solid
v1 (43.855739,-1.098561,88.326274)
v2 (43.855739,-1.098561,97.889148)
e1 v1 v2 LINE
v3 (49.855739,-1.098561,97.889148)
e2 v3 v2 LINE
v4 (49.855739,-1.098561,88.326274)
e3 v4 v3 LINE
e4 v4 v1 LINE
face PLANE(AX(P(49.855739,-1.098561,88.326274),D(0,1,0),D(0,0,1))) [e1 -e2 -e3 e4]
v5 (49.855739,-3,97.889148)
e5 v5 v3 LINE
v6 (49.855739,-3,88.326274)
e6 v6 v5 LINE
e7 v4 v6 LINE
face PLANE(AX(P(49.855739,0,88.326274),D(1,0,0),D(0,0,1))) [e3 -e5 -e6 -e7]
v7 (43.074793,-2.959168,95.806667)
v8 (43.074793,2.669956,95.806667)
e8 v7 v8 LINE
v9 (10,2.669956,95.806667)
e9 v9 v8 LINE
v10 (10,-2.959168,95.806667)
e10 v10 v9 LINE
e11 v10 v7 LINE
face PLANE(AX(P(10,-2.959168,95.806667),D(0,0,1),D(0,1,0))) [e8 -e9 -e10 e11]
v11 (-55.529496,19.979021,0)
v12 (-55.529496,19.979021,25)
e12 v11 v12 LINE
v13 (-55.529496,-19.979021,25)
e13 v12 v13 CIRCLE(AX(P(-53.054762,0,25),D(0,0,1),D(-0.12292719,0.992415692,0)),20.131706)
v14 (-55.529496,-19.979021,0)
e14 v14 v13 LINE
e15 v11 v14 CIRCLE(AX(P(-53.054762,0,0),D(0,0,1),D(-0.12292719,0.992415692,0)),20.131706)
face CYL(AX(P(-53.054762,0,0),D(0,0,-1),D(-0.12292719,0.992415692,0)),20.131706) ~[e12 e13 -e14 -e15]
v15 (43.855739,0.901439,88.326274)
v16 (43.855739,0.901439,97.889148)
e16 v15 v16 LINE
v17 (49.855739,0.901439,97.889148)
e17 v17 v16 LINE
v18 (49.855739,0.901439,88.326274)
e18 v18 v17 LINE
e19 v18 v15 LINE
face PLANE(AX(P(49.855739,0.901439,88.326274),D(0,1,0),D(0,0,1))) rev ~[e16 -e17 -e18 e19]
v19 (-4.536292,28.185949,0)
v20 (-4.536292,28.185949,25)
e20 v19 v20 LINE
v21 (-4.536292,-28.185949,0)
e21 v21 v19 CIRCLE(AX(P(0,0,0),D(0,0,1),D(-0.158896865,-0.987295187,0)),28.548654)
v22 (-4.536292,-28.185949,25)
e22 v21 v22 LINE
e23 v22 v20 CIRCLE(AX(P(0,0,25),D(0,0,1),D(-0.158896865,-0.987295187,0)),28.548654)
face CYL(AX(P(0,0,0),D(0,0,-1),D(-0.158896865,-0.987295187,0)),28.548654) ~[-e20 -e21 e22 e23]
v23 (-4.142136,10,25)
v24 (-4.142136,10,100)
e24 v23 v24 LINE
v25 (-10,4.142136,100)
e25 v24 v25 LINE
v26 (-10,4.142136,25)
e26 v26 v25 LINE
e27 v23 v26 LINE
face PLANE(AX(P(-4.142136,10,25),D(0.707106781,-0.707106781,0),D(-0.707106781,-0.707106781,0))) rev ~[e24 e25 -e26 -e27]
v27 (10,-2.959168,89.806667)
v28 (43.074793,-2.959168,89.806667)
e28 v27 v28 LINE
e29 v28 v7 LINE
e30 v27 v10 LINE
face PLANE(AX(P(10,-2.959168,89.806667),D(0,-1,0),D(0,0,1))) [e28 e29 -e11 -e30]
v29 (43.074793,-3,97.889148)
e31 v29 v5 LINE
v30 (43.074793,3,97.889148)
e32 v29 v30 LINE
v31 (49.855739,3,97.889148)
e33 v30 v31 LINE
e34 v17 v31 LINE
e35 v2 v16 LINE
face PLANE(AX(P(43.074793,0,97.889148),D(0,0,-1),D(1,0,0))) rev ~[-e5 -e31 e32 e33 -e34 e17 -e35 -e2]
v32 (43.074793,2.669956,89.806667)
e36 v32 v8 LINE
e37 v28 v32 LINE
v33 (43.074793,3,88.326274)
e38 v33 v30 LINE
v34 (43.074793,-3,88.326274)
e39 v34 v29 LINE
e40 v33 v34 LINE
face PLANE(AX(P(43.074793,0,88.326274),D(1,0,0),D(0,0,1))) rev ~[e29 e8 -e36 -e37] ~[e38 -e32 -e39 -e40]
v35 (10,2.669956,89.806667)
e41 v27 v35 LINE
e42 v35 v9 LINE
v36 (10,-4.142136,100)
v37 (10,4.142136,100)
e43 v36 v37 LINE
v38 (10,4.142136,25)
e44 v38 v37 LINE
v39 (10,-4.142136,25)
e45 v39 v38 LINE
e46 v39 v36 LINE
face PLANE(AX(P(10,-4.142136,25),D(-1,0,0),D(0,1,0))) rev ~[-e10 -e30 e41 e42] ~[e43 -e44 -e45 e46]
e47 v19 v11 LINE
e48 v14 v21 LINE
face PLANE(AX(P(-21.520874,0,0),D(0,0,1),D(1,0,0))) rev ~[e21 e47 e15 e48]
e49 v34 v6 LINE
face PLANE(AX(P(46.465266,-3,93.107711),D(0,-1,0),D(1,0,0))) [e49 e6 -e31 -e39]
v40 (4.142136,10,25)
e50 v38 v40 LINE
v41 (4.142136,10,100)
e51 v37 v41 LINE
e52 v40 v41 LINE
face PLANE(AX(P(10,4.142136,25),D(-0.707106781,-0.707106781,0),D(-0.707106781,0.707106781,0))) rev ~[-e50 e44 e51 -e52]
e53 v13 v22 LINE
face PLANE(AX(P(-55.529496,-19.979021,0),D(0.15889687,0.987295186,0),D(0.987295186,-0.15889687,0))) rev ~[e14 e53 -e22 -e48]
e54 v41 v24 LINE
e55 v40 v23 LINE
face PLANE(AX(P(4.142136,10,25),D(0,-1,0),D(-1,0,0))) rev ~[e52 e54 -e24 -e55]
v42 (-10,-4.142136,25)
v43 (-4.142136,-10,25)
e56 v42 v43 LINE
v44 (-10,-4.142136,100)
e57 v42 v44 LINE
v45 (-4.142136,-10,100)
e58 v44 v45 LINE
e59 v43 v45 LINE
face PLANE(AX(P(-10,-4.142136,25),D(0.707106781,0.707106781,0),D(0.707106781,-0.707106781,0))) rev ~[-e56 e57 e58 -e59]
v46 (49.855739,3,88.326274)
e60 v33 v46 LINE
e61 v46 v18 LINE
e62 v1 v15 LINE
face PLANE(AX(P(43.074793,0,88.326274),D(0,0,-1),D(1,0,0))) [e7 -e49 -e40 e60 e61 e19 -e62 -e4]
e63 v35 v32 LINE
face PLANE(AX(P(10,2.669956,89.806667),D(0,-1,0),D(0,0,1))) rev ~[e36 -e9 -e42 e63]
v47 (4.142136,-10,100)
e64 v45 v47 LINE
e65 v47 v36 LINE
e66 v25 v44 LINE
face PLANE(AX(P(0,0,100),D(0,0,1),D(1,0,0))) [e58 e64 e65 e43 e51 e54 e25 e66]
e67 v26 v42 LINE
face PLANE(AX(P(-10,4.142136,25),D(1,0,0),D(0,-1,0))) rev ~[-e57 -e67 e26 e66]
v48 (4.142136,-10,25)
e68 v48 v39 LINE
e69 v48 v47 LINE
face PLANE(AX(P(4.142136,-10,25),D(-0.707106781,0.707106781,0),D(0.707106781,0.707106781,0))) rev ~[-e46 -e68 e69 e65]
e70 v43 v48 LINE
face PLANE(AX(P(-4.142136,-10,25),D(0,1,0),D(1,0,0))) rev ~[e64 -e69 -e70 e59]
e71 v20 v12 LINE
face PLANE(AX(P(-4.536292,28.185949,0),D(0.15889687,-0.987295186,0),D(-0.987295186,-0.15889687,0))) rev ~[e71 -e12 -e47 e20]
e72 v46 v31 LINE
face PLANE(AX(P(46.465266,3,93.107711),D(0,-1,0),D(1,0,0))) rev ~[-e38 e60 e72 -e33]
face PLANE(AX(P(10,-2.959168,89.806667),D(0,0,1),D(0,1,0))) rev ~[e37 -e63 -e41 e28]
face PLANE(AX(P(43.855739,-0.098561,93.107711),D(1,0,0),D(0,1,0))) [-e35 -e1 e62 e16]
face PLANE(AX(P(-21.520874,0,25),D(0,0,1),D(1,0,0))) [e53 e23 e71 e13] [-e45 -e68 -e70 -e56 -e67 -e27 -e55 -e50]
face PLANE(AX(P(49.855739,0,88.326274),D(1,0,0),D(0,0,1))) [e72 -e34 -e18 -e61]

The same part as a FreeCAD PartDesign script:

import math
import FreeCAD as App
import Part
import Sketcher
Q = App.Units.Quantity

doc = App.newDocument("Part")
body = doc.addObject("PartDesign::Body", "Body")

# Sketch on XY plane
sketch1 = body.newObject("Sketcher::SketchObject", "Sketch")
sketch1.AttachmentSupport = (doc.getObject("XY_Plane"), [""])
sketch1.MapMode = "FlatFace"
sketch1.addGeometry(Part.LineSegment(App.Vector(-5, 28, 0), App.Vector(-56, 20, 0)), False)
sketch1.addGeometry(Part.ArcOfCircle(Part.Circle(App.Vector(-53, 0, 0), App.Vector(0, 0, 1), 20), math.radians(97), math.radians(263)), False)
sketch1.addGeometry(Part.LineSegment(App.Vector(-56, -20, 0), App.Vector(-5, -28, 0)), False)
sketch1.addGeometry(Part.ArcOfCircle(Part.Circle(App.Vector(0, 0, 0), App.Vector(0, 0, 1), 29), math.radians(-99), math.radians(99)), False)
sketch1.addConstraint(Sketcher.Constraint("Coincident", 0, 2, 1, 1))
sketch1.addConstraint(Sketcher.Constraint("Coincident", 1, 2, 2, 1))
sketch1.addConstraint(Sketcher.Constraint("Tangent", 2, 2, 3, 1))
sketch1.addConstraint(Sketcher.Constraint("Tangent", 3, 2, 0, 1))
sketch1.addConstraint(Sketcher.Constraint("Coincident", 3, 3, -1, 1))
sketch1.addConstraint(Sketcher.Constraint("Symmetric", 0, 2, 1, 2, -1))
sketch1.addConstraint(Sketcher.Constraint("Radius", 1, Q("20.131706 mm")))
sketch1.addConstraint(Sketcher.Constraint("Radius", 3, Q("28.548654 mm")))
sketch1.addConstraint(Sketcher.Constraint("Distance", 0, Q("51.6494 mm")))
sketch1.addConstraint(Sketcher.Constraint("DistanceX", 1, 3, -1, 1, Q("53.054762 mm")))
pad1 = body.newObject("PartDesign::Pad", "Pad")
pad1.Profile = sketch1
pad1.Length = 25

# Sketch on XY plane
sketch2 = body.newObject("Sketcher::SketchObject", "Sketch001")
sketch2.AttachmentSupport = (doc.getObject("XY_Plane"), [""])
sketch2.MapMode = "FlatFace"
sketch2.AttachmentOffset = App.Placement(App.Vector(0, 0, 25), App.Rotation())
sketch2.addGeometry(Part.LineSegment(App.Vector(-10, 4, 0), App.Vector(-10, -4, 0)), False)
sketch2.addGeometry(Part.LineSegment(App.Vector(-10, -4, 0), App.Vector(-4, -10, 0)), False)
sketch2.addGeometry(Part.LineSegment(App.Vector(-4, -10, 0), App.Vector(4, -10, 0)), False)
sketch2.addGeometry(Part.LineSegment(App.Vector(4, -10, 0), App.Vector(10, -4, 0)), False)
sketch2.addGeometry(Part.LineSegment(App.Vector(10, -4, 0), App.Vector(10, 4, 0)), False)
sketch2.addGeometry(Part.LineSegment(App.Vector(10, 4, 0), App.Vector(4, 10, 0)), False)
sketch2.addGeometry(Part.LineSegment(App.Vector(4, 10, 0), App.Vector(-4, 10, 0)), False)
sketch2.addGeometry(Part.LineSegment(App.Vector(-4, 10, 0), App.Vector(-10, 4, 0)), False)
sketch2.addConstraint(Sketcher.Constraint("Coincident", 0, 2, 1, 1))
sketch2.addConstraint(Sketcher.Constraint("Coincident", 1, 2, 2, 1))
sketch2.addConstraint(Sketcher.Constraint("Coincident", 2, 2, 3, 1))
sketch2.addConstraint(Sketcher.Constraint("Coincident", 3, 2, 4, 1))
sketch2.addConstraint(Sketcher.Constraint("Coincident", 4, 2, 5, 1))
sketch2.addConstraint(Sketcher.Constraint("Coincident", 5, 2, 6, 1))
sketch2.addConstraint(Sketcher.Constraint("Coincident", 6, 2, 7, 1))
sketch2.addConstraint(Sketcher.Constraint("Coincident", 7, 2, 0, 1))
sketch2.addConstraint(Sketcher.Constraint("Vertical", 0))
sketch2.addConstraint(Sketcher.Constraint("Horizontal", 2))
sketch2.addConstraint(Sketcher.Constraint("Vertical", 4))
sketch2.addConstraint(Sketcher.Constraint("Horizontal", 6))
sketch2.addConstraint(Sketcher.Constraint("Symmetric", 0, 2, 4, 2, -1, 1))
sketch2.addConstraint(Sketcher.Constraint("Symmetric", 1, 2, 5, 2, -1, 1))
sketch2.addConstraint(Sketcher.Constraint("Perpendicular", 1, 3))
sketch2.addConstraint(Sketcher.Constraint("Perpendicular", 5, 7))
sketch2.addConstraint(Sketcher.Constraint("Horizontal", 0, 2, 3, 2))
sketch2.addConstraint(Sketcher.Constraint("Horizontal", 4, 2, 7, 2))
sketch2.addConstraint(Sketcher.Constraint("Vertical", 2, 2, 5, 2))
sketch2.addConstraint(Sketcher.Constraint("Equal", 6, 0))
sketch2.addConstraint(Sketcher.Constraint("DistanceX", 0, 2, -1, 1, Q("10 mm")))
sketch2.addConstraint(Sketcher.Constraint("Distance", 1, Q("8.284271 mm")))
pad2 = body.newObject("PartDesign::Pad", "Pad001")
pad2.Profile = sketch2
pad2.Length = 75

# Sketch on YZ plane
sketch3 = body.newObject("Sketcher::SketchObject", "Sketch002")
sketch3.AttachmentSupport = (doc.getObject("YZ_Plane"), [""])
sketch3.MapMode = "FlatFace"
sketch3.AttachmentOffset = App.Placement(App.Vector(0, 0, 10), App.Rotation())
sketch3.addGeometry(Part.LineSegment(App.Vector(-3, 96, 0), App.Vector(-3, 90, 0)), False)
sketch3.addGeometry(Part.LineSegment(App.Vector(-3, 90, 0), App.Vector(3, 90, 0)), False)
sketch3.addGeometry(Part.LineSegment(App.Vector(3, 90, 0), App.Vector(3, 96, 0)), False)
sketch3.addGeometry(Part.LineSegment(App.Vector(3, 96, 0), App.Vector(-3, 96, 0)), False)
sketch3.addConstraint(Sketcher.Constraint("Coincident", 0, 2, 1, 1))
sketch3.addConstraint(Sketcher.Constraint("Coincident", 1, 2, 2, 1))
sketch3.addConstraint(Sketcher.Constraint("Coincident", 2, 2, 3, 1))
sketch3.addConstraint(Sketcher.Constraint("Coincident", 3, 2, 0, 1))
sketch3.addConstraint(Sketcher.Constraint("Vertical", 0))
sketch3.addConstraint(Sketcher.Constraint("Horizontal", 1))
sketch3.addConstraint(Sketcher.Constraint("Vertical", 2))
sketch3.addConstraint(Sketcher.Constraint("Horizontal", 3))
sketch3.addConstraint(Sketcher.Constraint("DistanceY", 0, 2, 0, 1, Q("6 mm")))
sketch3.addConstraint(Sketcher.Constraint("DistanceX", 1, 1, 1, 2, Q("5.629124 mm")))
sketch3.addConstraint(Sketcher.Constraint("DistanceX", 0, 2, -1, 1, Q("2.959168 mm")))
sketch3.addConstraint(Sketcher.Constraint("DistanceY", -1, 1, 0, 2, Q("89.806667 mm")))
pad3 = body.newObject("PartDesign::Pad", "Pad002")
pad3.Profile = sketch3
pad3.Length = 35

# Sketch on XZ plane
sketch4 = body.newObject("Sketcher::SketchObject", "Sketch003")
sketch4.AttachmentSupport = (doc.getObject("XZ_Plane"), [""])
sketch4.MapMode = "FlatFace"
sketch4.addGeometry(Part.LineSegment(App.Vector(43, 98, 0), App.Vector(43, 88, 0)), False)
sketch4.addGeometry(Part.LineSegment(App.Vector(43, 88, 0), App.Vector(50, 88, 0)), False)
sketch4.addGeometry(Part.LineSegment(App.Vector(50, 88, 0), App.Vector(50, 98, 0)), False)
sketch4.addGeometry(Part.LineSegment(App.Vector(50, 98, 0), App.Vector(43, 98, 0)), False)
sketch4.addConstraint(Sketcher.Constraint("Coincident", 0, 2, 1, 1))
sketch4.addConstraint(Sketcher.Constraint("Coincident", 1, 2, 2, 1))
sketch4.addConstraint(Sketcher.Constraint("Coincident", 2, 2, 3, 1))
sketch4.addConstraint(Sketcher.Constraint("Coincident", 3, 2, 0, 1))
sketch4.addConstraint(Sketcher.Constraint("Vertical", 0))
sketch4.addConstraint(Sketcher.Constraint("Horizontal", 1))
sketch4.addConstraint(Sketcher.Constraint("Vertical", 2))
sketch4.addConstraint(Sketcher.Constraint("Horizontal", 3))
sketch4.addConstraint(Sketcher.Constraint("DistanceX", 1, 1, 1, 2, Q("6.780945 mm")))
sketch4.addConstraint(Sketcher.Constraint("DistanceY", 0, 2, 0, 1, Q("9.562873 mm")))
sketch4.addConstraint(Sketcher.Constraint("DistanceX", -1, 1, 1, 2, Q("49.855739 mm")))
sketch4.addConstraint(Sketcher.Constraint("DistanceY", -1, 1, 0, 2, Q("88.326274 mm")))
pad4 = body.newObject("PartDesign::Pad", "Pad003")
pad4.Profile = sketch4
pad4.Length = 6
pad4.Midplane = True

# Sketch on YZ plane
sketch5 = body.newObject("Sketcher::SketchObject", "Sketch004")
sketch5.AttachmentSupport = (doc.getObject("YZ_Plane"), [""])
sketch5.MapMode = "FlatFace"
sketch5.AttachmentOffset = App.Placement(App.Vector(0, 0, 49.855739), App.Rotation())
sketch5.addGeometry(Part.LineSegment(App.Vector(-1.1, 97.9, 0), App.Vector(-1.1, 88.3, 0)), False)
sketch5.addGeometry(Part.LineSegment(App.Vector(-1.1, 88.3, 0), App.Vector(0.9, 88.3, 0)), False)
sketch5.addGeometry(Part.LineSegment(App.Vector(0.9, 88.3, 0), App.Vector(0.9, 97.9, 0)), False)
sketch5.addGeometry(Part.LineSegment(App.Vector(0.9, 97.9, 0), App.Vector(-1.1, 97.9, 0)), False)
sketch5.addConstraint(Sketcher.Constraint("Coincident", 0, 2, 1, 1))
sketch5.addConstraint(Sketcher.Constraint("Coincident", 1, 2, 2, 1))
sketch5.addConstraint(Sketcher.Constraint("Coincident", 2, 2, 3, 1))
sketch5.addConstraint(Sketcher.Constraint("Coincident", 3, 2, 0, 1))
sketch5.addConstraint(Sketcher.Constraint("Vertical", 0))
sketch5.addConstraint(Sketcher.Constraint("Horizontal", 1))
sketch5.addConstraint(Sketcher.Constraint("Vertical", 2))
sketch5.addConstraint(Sketcher.Constraint("Horizontal", 3))
sketch5.addConstraint(Sketcher.Constraint("DistanceX", 1, 1, 1, 2, Q("2 mm")))
sketch5.addConstraint(Sketcher.Constraint("DistanceY", 0, 2, 0, 1, Q("9.562873 mm")))
sketch5.addConstraint(Sketcher.Constraint("DistanceX", 0, 2, -1, 1, Q("1.098561 mm")))
sketch5.addConstraint(Sketcher.Constraint("DistanceY", -1, 1, 0, 2, Q("88.326274 mm")))
pocket1 = body.newObject("PartDesign::Pocket", "Pocket")
pocket1.Profile = sketch5
pocket1.Length = 6

doc.recompute()
